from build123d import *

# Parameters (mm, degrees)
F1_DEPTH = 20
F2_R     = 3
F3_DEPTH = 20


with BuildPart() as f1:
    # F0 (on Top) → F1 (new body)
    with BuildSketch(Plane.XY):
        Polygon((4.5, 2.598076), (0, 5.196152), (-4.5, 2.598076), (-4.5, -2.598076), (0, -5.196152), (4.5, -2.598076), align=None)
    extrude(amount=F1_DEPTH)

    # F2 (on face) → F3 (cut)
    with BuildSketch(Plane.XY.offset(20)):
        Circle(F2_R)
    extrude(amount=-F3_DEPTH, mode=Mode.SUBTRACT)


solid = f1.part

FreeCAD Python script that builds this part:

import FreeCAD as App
import Part
import Sketcher

V = App.Vector
Q = App.Units.Quantity


def add_polygon(sketch, points):
    """Adds a closed chain of lines whose ends are joined by coincident constraints."""
    first, n = sketch.GeometryCount, len(points)
    for a, b in zip(points, points[1:] + points[:1]):
        sketch.addGeometry(Part.LineSegment(App.Vector(*a, 0), App.Vector(*b, 0)), False)
    for i in range(n):
        sketch.addConstraint(Sketcher.Constraint("Coincident", first + i, 2, first + (i + 1) % n, 1))

doc = App.newDocument("Part")
params = doc.addObject("Spreadsheet::Sheet", "Params")
for row, (alias, value) in enumerate([
    ("pad1_length", "20 mm"),
    ("sketch2_diameter", "6 mm"),
    ("pocket1_length", "20 mm"),
], start=1):
    params.set(f"A{row}", alias)
    params.set(f"B{row}", "=" + value)
    params.setAlias(f"B{row}", alias)

body = doc.addObject("PartDesign::Body", "Body")

# Sketch on XY plane
sketch1 = doc.addObject("Sketcher::SketchObject", "Sketch")
body.addObject(sketch1)
sketch1.AttachmentSupport = (doc.XY_Plane, [""])
sketch1.MapMode = "FlatFace"
add_polygon(sketch1, [(4, 3), (0, 5), (-4, 3), (-4, -3), (0, -5), (4, -3)])  # lines 0-5
sketch1.addConstraint([
    Sketcher.Constraint("Vertical", 2),
    Sketcher.Constraint("Vertical", 5),
    Sketcher.Constraint("Symmetric", 0, 2, 3, 2, -1, 1),
    Sketcher.Constraint("Symmetric", 1, 2, 4, 2, -1, 1),
    Sketcher.Constraint("PointOnObject", 0, 2, -2),
    Sketcher.Constraint("Parallel", 0, 3),
    Sketcher.Constraint("Horizontal", 2, 2, 4, 2),
    Sketcher.Constraint("Angle", 0, Q("150.000002 deg")),
    Sketcher.Constraint("DistanceX", 2, 2, 4, 2, Q("9 mm")),
    Sketcher.Constraint("DistanceY", 2, 2, 2, 1, Q("5.196152 mm")),
])
pad1 = doc.addObject("PartDesign::Pad", "Pad")
body.addObject(pad1)
pad1.Profile = sketch1
pad1.setExpression("Length", "Params.pad1_length")

# Sketch on XY plane
sketch2 = doc.addObject("Sketcher::SketchObject", "Sketch001")
body.addObject(sketch2)
sketch2.AttachmentSupport = (doc.XY_Plane, [""])
sketch2.MapMode = "FlatFace"
sketch2.AttachmentOffset = App.Placement(V(0, 0, 20), App.Rotation())
sketch2.addGeometry(Part.Circle(V(0, 0, 0), V(0, 0, 1), 3), False)
sketch2.addConstraint([
    Sketcher.Constraint("Coincident", 0, 3, -1, 1),
    Sketcher.Constraint("Diameter", 0, Q("6 mm")),
])
sketch2.setExpression("Constraints[1]", "Params.sketch2_diameter")
pocket1 = doc.addObject("PartDesign::Pocket", "Pocket")
body.addObject(pocket1)
pocket1.Profile = sketch2
pocket1.setExpression("Length", "Params.pocket1_length")

doc.recompute()
